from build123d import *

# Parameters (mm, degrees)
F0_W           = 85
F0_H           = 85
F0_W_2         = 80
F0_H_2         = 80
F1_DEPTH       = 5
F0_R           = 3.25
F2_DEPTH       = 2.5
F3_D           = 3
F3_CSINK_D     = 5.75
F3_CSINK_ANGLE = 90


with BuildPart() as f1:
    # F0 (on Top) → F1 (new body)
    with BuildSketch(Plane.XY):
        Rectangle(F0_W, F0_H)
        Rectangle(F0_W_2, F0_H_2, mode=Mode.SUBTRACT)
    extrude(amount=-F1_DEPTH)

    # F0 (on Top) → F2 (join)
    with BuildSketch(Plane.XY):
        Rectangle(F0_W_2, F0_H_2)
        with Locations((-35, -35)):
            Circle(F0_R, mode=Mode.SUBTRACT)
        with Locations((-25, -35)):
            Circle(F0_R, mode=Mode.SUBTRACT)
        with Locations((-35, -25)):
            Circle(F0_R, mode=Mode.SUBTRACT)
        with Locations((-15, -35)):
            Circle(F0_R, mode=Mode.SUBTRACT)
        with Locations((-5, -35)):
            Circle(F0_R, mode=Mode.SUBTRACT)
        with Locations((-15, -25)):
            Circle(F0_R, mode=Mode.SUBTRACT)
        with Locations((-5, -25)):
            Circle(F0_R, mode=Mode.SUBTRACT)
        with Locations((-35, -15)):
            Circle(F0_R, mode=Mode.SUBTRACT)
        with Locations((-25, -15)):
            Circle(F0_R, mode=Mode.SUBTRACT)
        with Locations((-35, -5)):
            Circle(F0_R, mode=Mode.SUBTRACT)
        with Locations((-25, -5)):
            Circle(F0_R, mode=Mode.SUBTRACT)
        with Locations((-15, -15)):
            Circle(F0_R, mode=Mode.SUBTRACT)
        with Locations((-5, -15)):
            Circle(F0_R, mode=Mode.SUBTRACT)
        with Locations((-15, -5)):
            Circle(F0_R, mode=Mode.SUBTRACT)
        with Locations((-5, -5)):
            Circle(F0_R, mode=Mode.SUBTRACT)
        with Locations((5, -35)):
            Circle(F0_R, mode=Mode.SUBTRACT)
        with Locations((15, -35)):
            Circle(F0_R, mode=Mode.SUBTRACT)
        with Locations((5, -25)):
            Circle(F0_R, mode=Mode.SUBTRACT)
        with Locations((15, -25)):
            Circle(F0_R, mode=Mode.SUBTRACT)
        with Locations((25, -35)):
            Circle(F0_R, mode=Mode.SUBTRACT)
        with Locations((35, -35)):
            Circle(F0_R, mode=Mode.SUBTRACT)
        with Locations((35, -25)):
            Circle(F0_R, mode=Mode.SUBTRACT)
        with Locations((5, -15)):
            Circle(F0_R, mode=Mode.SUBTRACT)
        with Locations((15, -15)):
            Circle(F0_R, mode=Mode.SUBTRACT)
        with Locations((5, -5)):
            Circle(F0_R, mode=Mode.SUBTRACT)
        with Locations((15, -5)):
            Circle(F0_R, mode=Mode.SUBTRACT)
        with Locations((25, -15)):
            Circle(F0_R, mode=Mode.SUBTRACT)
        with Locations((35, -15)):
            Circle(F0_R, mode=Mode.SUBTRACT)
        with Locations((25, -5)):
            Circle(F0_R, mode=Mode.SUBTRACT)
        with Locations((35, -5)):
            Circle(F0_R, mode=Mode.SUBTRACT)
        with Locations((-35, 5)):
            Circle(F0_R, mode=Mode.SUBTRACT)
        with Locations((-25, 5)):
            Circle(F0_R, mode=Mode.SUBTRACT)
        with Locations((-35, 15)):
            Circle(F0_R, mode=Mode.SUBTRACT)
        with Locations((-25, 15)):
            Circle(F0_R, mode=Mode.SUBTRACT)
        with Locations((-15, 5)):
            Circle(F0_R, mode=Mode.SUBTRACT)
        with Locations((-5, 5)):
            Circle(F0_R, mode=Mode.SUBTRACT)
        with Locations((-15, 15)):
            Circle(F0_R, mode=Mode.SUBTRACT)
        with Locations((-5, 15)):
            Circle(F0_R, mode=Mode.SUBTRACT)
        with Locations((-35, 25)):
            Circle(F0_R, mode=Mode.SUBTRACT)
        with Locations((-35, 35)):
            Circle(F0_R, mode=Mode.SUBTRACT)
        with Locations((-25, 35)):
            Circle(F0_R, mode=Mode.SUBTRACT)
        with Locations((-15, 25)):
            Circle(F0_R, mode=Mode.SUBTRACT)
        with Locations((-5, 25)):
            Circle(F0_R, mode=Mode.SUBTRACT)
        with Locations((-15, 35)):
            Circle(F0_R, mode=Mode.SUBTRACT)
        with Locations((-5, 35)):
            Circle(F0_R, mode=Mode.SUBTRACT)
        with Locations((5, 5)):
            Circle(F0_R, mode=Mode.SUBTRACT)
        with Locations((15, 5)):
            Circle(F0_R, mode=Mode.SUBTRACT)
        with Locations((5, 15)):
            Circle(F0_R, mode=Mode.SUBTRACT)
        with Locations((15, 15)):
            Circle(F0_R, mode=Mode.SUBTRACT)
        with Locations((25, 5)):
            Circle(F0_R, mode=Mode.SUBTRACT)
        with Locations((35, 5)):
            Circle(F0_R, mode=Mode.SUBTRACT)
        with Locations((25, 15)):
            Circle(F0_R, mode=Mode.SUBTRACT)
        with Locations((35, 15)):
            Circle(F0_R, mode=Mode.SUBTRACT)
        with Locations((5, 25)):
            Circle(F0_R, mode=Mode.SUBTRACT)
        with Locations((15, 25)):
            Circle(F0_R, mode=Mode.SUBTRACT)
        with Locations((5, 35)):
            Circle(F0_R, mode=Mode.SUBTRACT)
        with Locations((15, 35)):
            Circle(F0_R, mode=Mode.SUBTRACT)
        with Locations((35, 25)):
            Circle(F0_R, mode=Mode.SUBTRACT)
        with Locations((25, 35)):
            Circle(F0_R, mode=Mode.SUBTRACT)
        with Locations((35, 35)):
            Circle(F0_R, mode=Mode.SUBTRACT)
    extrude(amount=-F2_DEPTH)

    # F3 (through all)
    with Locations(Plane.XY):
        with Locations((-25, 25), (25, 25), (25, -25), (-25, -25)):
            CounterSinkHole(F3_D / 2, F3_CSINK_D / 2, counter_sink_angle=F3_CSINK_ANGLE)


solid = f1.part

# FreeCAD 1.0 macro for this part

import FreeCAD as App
import Part
import Sketcher
from FreeCAD import Vector


def add_polygon(sketch, points):
    """Adds a closed chain of lines whose ends are joined by coincident constraints."""
    first, n = sketch.GeometryCount, len(points)
    for a, b in zip(points, points[1:] + points[:1]):
        sketch.addGeometry(Part.LineSegment(App.Vector(*a, 0), App.Vector(*b, 0)), False)
    for i in range(n):
        sketch.addConstraint(Sketcher.Constraint("Coincident", first + i, 2, first + (i + 1) % n, 1))

doc = App.newDocument("Part")
body = doc.addObject("PartDesign::Body", "Body")

sketch1 = body.newObject("Sketcher::SketchObject", "Sketch")
sketch1.AttachmentSupport = (doc.getObject("XY_Plane"), [""])
sketch1.MapMode = "FlatFace"
add_polygon(sketch1, [(-42.5, 42.5), (-42.5, -42.5), (42.5, -42.5), (42.5, 42.5)])
add_polygon(sketch1, [(40, -40), (-40, -40), (-40, 40), (40, 40)])
sketch1.addConstraint(Sketcher.Constraint("Vertical", 0))
sketch1.addConstraint(Sketcher.Constraint("Horizontal", 1))
sketch1.addConstraint(Sketcher.Constraint("Vertical", 2))
sketch1.addConstraint(Sketcher.Constraint("Horizontal", 3))
sketch1.addConstraint(Sketcher.Constraint("Horizontal", 4))
sketch1.addConstraint(Sketcher.Constraint("Vertical", 5))
sketch1.addConstraint(Sketcher.Constraint("Horizontal", 6))
sketch1.addConstraint(Sketcher.Constraint("Vertical", 7))
sketch1.addConstraint(Sketcher.Constraint("Symmetric", 0, 2, 2, 2, -1, 1))
sketch1.addConstraint(Sketcher.Constraint("Symmetric", 4, 2, 6, 2, -1, 1))
sketch1.addConstraint(Sketcher.Constraint("Equal", 3, 0))
sketch1.addConstraint(Sketcher.Constraint("Equal", 6, 5))
sketch1.addConstraint(Sketcher.Constraint("DistanceX", 1, 1, 1, 2, 85.0))
sketch1.addConstraint(Sketcher.Constraint("DistanceX", 4, 2, 4, 1, 80.0))
pad1 = body.newObject("PartDesign::Pad", "Pad")
pad1.Profile = sketch1
pad1.Length = 5
pad1.Reversed = True

sketch2 = body.newObject("Sketcher::SketchObject", "Sketch001")
sketch2.AttachmentSupport = (doc.getObject("XY_Plane"), [""])
sketch2.MapMode = "FlatFace"
add_polygon(sketch2, [(-40, 40), (-40, -40), (40, -40), (40, 40)])
sketch2.addGeometry(Part.Circle(Vector(-35, -35, 0), Vector(0, 0, 1), 3.25), False)
sketch2.addGeometry(Part.Circle(Vector(-25, -35, 0), Vector(0, 0, 1), 3.25), False)
sketch2.addGeometry(Part.Circle(Vector(-35, -25, 0), Vector(0, 0, 1), 3.25), False)
sketch2.addGeometry(Part.Circle(Vector(-15, -35, 0), Vector(0, 0, 1), 3.25), False)
sketch2.addGeometry(Part.Circle(Vector(-5, -35, 0), Vector(0, 0, 1), 3.25), False)
sketch2.addGeometry(Part.Circle(Vector(-15, -25, 0), Vector(0, 0, 1), 3.25), False)
sketch2.addGeometry(Part.Circle(Vector(-5, -25, 0), Vector(0, 0, 1), 3.25), False)
sketch2.addGeometry(Part.Circle(Vector(-35, -15, 0), Vector(0, 0, 1), 3.25), False)
sketch2.addGeometry(Part.Circle(Vector(-25, -15, 0), Vector(0, 0, 1), 3.25), False)
sketch2.addGeometry(Part.Circle(Vector(-35, -5, 0), Vector(0, 0, 1), 3.25), False)
sketch2.addGeometry(Part.Circle(Vector(-25, -5, 0), Vector(0, 0, 1), 3.25), False)
sketch2.addGeometry(Part.Circle(Vector(-15, -15, 0), Vector(0, 0, 1), 3.25), False)
sketch2.addGeometry(Part.Circle(Vector(-5, -15, 0), Vector(0, 0, 1), 3.25), False)
sketch2.addGeometry(Part.Circle(Vector(-15, -5, 0), Vector(0, 0, 1), 3.25), False)
sketch2.addGeometry(Part.Circle(Vector(-5, -5, 0), Vector(0, 0, 1), 3.25), False)
sketch2.addGeometry(Part.Circle(Vector(5, -35, 0), Vector(0, 0, 1), 3.25), False)
sketch2.addGeometry(Part.Circle(Vector(15, -35, 0), Vector(0, 0, 1), 3.25), False)
sketch2.addGeometry(Part.Circle(Vector(5, -25, 0), Vector(0, 0, 1), 3.25), False)
sketch2.addGeometry(Part.Circle(Vector(15, -25, 0), Vector(0, 0, 1), 3.25), False)
sketch2.addGeometry(Part.Circle(Vector(25, -35, 0), Vector(0, 0, 1), 3.25), False)
sketch2.addGeometry(Part.Circle(Vector(35, -35, 0), Vector(0, 0, 1), 3.25), False)
sketch2.addGeometry(Part.Circle(Vector(35, -25, 0), Vector(0, 0, 1), 3.25), False)
sketch2.addGeometry(Part.Circle(Vector(5, -15, 0), Vector(0, 0, 1), 3.25), False)
sketch2.addGeometry(Part.Circle(Vector(15, -15, 0), Vector(0, 0, 1), 3.25), False)
sketch2.addGeometry(Part.Circle(Vector(5, -5, 0), Vector(0, 0, 1), 3.25), False)
sketch2.addGeometry(Part.Circle(Vector(15, -5, 0), Vector(0, 0, 1), 3.25), False)
sketch2.addGeometry(Part.Circle(Vector(25, -15, 0), Vector(0, 0, 1), 3.25), False)
sketch2.addGeometry(Part.Circle(Vector(35, -15, 0), Vector(0, 0, 1), 3.25), False)
sketch2.addGeometry(Part.Circle(Vector(25, -5, 0), Vector(0, 0, 1), 3.25), False)
sketch2.addGeometry(Part.Circle(Vector(35, -5, 0), Vector(0, 0, 1), 3.25), False)
sketch2.addGeometry(Part.Circle(Vector(-35, 5, 0), Vector(0, 0, 1), 3.25), False)
sketch2.addGeometry(Part.Circle(Vector(-25, 5, 0), Vector(0, 0, 1), 3.25), False)
sketch2.addGeometry(Part.Circle(Vector(-35, 15, 0), Vector(0, 0, 1), 3.25), False)
sketch2.addGeometry(Part.Circle(Vector(-25, 15, 0), Vector(0, 0, 1), 3.25), False)
sketch2.addGeometry(Part.Circle(Vector(-15, 5, 0), Vector(0, 0, 1), 3.25), False)
sketch2.addGeometry(Part.Circle(Vector(-5, 5, 0), Vector(0, 0, 1), 3.25), False)
sketch2.addGeometry(Part.Circle(Vector(-15, 15, 0), Vector(0, 0, 1), 3.25), False)
sketch2.addGeometry(Part.Circle(Vector(-5, 15, 0), Vector(0, 0, 1), 3.25), False)
sketch2.addGeometry(Part.Circle(Vector(-35, 25, 0), Vector(0, 0, 1), 3.25), False)
sketch2.addGeometry(Part.Circle(Vector(-35, 35, 0), Vector(0, 0, 1), 3.25), False)
sketch2.addGeometry(Part.Circle(Vector(-25, 35, 0), Vector(0, 0, 1), 3.25), False)
sketch2.addGeometry(Part.Circle(Vector(-15, 25, 0), Vector(0, 0, 1), 3.25), False)
sketch2.addGeometry(Part.Circle(Vector(-5, 25, 0), Vector(0, 0, 1), 3.25), False)
sketch2.addGeometry(Part.Circle(Vector(-15, 35, 0), Vector(0, 0, 1), 3.25), False)
sketch2.addGeometry(Part.Circle(Vector(-5, 35, 0), Vector(0, 0, 1), 3.25), False)
sketch2.addGeometry(Part.Circle(Vector(5, 5, 0), Vector(0, 0, 1), 3.25), False)
sketch2.addGeometry(Part.Circle(Vector(15, 5, 0), Vector(0, 0, 1), 3.25), False)
sketch2.addGeometry(Part.Circle(Vector(5, 15, 0), Vector(0, 0, 1), 3.25), False)
sketch2.addGeometry(Part.Circle(Vector(15, 15, 0), Vector(0, 0, 1), 3.25), False)
sketch2.addGeometry(Part.Circle(Vector(25, 5, 0), Vector(0, 0, 1), 3.25), False)
sketch2.addGeometry(Part.Circle(Vector(35, 5, 0), Vector(0, 0, 1), 3.25), False)
sketch2.addGeometry(Part.Circle(Vector(25, 15, 0), Vector(0, 0, 1), 3.25), False)
sketch2.addGeometry(Part.Circle(Vector(35, 15, 0), Vector(0, 0, 1), 3.25), False)
sketch2.addGeometry(Part.Circle(Vector(5, 25, 0), Vector(0, 0, 1), 3.25), False)
sketch2.addGeometry(Part.Circle(Vector(15, 25, 0), Vector(0, 0, 1), 3.25), False)
sketch2.addGeometry(Part.Circle(Vector(5, 35, 0), Vector(0, 0, 1), 3.25), False)
sketch2.addGeometry(Part.Circle(Vector(15, 35, 0), Vector(0, 0, 1), 3.25), False)
sketch2.addGeometry(Part.Circle(Vector(35, 25, 0), Vector(0, 0, 1), 3.25), False)
sketch2.addGeometry(Part.Circle(Vector(25, 35, 0), Vector(0, 0, 1), 3.25), False)
sketch2.addGeometry(Part.Circle(Vector(35, 35, 0), Vector(0, 0, 1), 3.25), False)
sketch2.addConstraint(Sketcher.Constraint("Vertical", 0))
sketch2.addConstraint(Sketcher.Constraint("Horizontal", 1))
sketch2.addConstraint(Sketcher.Constraint("Vertical", 2))
sketch2.addConstraint(Sketcher.Constraint("Horizontal", 3))
sketch2.addConstraint(Sketcher.Constraint("Equal", 4, 5))
sketch2.addConstraint(Sketcher.Constraint("Equal", 5, 6))
sketch2.addConstraint(Sketcher.Constraint("Equal", 6, 7))
sketch2.addConstraint(Sketcher.Constraint("Equal", 7, 8))
sketch2.addConstraint(Sketcher.Constraint("Equal", 8, 9))
sketch2.addConstraint(Sketcher.Constraint("Equal", 9, 10))
sketch2.addConstraint(Sketcher.Constraint("Equal", 10, 11))
sketch2.addConstraint(Sketcher.Constraint("Equal", 11, 12))
sketch2.addConstraint(Sketcher.Constraint("Equal", 12, 13))
sketch2.addConstraint(Sketcher.Constraint("Equal", 13, 14))
sketch2.addConstraint(Sketcher.Constraint("Equal", 14, 15))
sketch2.addConstraint(Sketcher.Constraint("Equal", 15, 16))
sketch2.addConstraint(Sketcher.Constraint("Equal", 16, 17))
sketch2.addConstraint(Sketcher.Constraint("Equal", 17, 18))
sketch2.addConstraint(Sketcher.Constraint("Equal", 18, 19))
sketch2.addConstraint(Sketcher.Constraint("Equal", 19, 20))
sketch2.addConstraint(Sketcher.Constraint("Equal", 20, 21))
sketch2.addConstraint(Sketcher.Constraint("Equal", 21, 22))
sketch2.addConstraint(Sketcher.Constraint("Equal", 22, 23))
sketch2.addConstraint(Sketcher.Constraint("Equal", 23, 24))
sketch2.addConstraint(Sketcher.Constraint("Equal", 24, 25))
sketch2.addConstraint(Sketcher.Constraint("Equal", 25, 26))
sketch2.addConstraint(Sketcher.Constraint("Equal", 26, 27))
sketch2.addConstraint(Sketcher.Constraint("Equal", 27, 28))
sketch2.addConstraint(Sketcher.Constraint("Equal", 28, 29))
sketch2.addConstraint(Sketcher.Constraint("Equal", 29, 30))
sketch2.addConstraint(Sketcher.Constraint("Equal", 30, 31))
sketch2.addConstraint(Sketcher.Constraint("Equal", 31, 32))
sketch2.addConstraint(Sketcher.Constraint("Equal", 32, 33))
sketch2.addConstraint(Sketcher.Constraint("Equal", 33, 34))
sketch2.addConstraint(Sketcher.Constraint("Equal", 34, 35))
sketch2.addConstraint(Sketcher.Constraint("Equal", 35, 36))
sketch2.addConstraint(Sketcher.Constraint("Equal", 36, 37))
sketch2.addConstraint(Sketcher.Constraint("Equal", 37, 38))
sketch2.addConstraint(Sketcher.Constraint("Equal", 38, 39))
sketch2.addConstraint(Sketcher.Constraint("Equal", 39, 40))
sketch2.addConstraint(Sketcher.Constraint("Equal", 40, 41))
sketch2.addConstraint(Sketcher.Constraint("Equal", 41, 42))
sketch2.addConstraint(Sketcher.Constraint("Equal", 42, 43))
sketch2.addConstraint(Sketcher.Constraint("Equal", 43, 44))
sketch2.addConstraint(Sketcher.Constraint("Equal", 44, 45))
sketch2.addConstraint(Sketcher.Constraint("Equal", 45, 46))
sketch2.addConstraint(Sketcher.Constraint("Equal", 46, 47))
sketch2.addConstraint(Sketcher.Constraint("Equal", 47, 48))
sketch2.addConstraint(Sketcher.Constraint("Equal", 48, 49))
sketch2.addConstraint(Sketcher.Constraint("Equal", 49, 50))
sketch2.addConstraint(Sketcher.Constraint("Equal", 50, 51))
sketch2.addConstraint(Sketcher.Constraint("Equal", 51, 52))
sketch2.addConstraint(Sketcher.Constraint("Equal", 52, 53))
sketch2.addConstraint(Sketcher.Constraint("Equal", 53, 54))
sketch2.addConstraint(Sketcher.Constraint("Equal", 54, 55))
sketch2.addConstraint(Sketcher.Constraint("Equal", 55, 56))
sketch2.addConstraint(Sketcher.Constraint("Equal", 56, 57))
sketch2.addConstraint(Sketcher.Constraint("Equal", 57, 58))
sketch2.addConstraint(Sketcher.Constraint("Equal", 58, 59))
sketch2.addConstraint(Sketcher.Constraint("Equal", 59, 60))
sketch2.addConstraint(Sketcher.Constraint("Equal", 60, 61))
sketch2.addConstraint(Sketcher.Constraint("Equal", 61, 62))
sketch2.addConstraint(Sketcher.Constraint("Equal", 62, 63))
sketch2.addConstraint(Sketcher.Constraint("Symmetric", 33, 3, 34, 3, -1, 1))
sketch2.addConstraint(Sketcher.Constraint("Symmetric", 32, 3, 35, 3, -1, 1))
sketch2.addConstraint(Sketcher.Constraint("Symmetric", 31, 3, 36, 3, -1, 1))
sketch2.addConstraint(Sketcher.Constraint("Symmetric", 30, 3, 37, 3, -1, 1))
sketch2.addConstraint(Sketcher.Constraint("Symmetric", 29, 3, 38, 3, -1, 1))
sketch2.addConstraint(Sketcher.Constraint("Symmetric", 28, 3, 39, 3, -1, 1))
sketch2.addConstraint(Sketcher.Constraint("Symmetric", 27, 3, 40, 3, -1, 1))
sketch2.addConstraint(Sketcher.Constraint("Symmetric", 26, 3, 41, 3, -1, 1))
sketch2.addConstraint(Sketcher.Constraint("Symmetric", 25, 3, 42, 3, -1, 1))
sketch2.addConstraint(Sketcher.Constraint("Symmetric", 24, 3, 43, 3, -1, 1))
sketch2.addConstraint(Sketcher.Constraint("Symmetric", 23, 3, 44, 3, -1, 1))
sketch2.addConstraint(Sketcher.Constraint("Symmetric", 22, 3, 45, 3, -1, 1))
sketch2.addConstraint(Sketcher.Constraint("Symmetric", 21, 3, 46, 3, -1, 1))
sketch2.addConstraint(Sketcher.Constraint("Symmetric", 20, 3, 47, 3, -1, 1))
sketch2.addConstraint(Sketcher.Constraint("Symmetric", 19, 3, 48, 3, -1, 1))
sketch2.addConstraint(Sketcher.Constraint("Symmetric", 18, 3, 49, 3, -1, 1))
sketch2.addConstraint(Sketcher.Constraint("Symmetric", 17, 3, 50, 3, -1, 1))
sketch2.addConstraint(Sketcher.Constraint("Symmetric", 16, 3, 51, 3, -1, 1))
sketch2.addConstraint(Sketcher.Constraint("Symmetric", 15, 3, 52, 3, -1, 1))
sketch2.addConstraint(Sketcher.Constraint("Symmetric", 14, 3, 53, 3, -1, 1))
sketch2.addConstraint(Sketcher.Constraint("Symmetric", 13, 3, 54, 3, -1, 1))
sketch2.addConstraint(Sketcher.Constraint("Symmetric", 12, 3, 55, 3, -1, 1))
sketch2.addConstraint(Sketcher.Constraint("Symmetric", 11, 3, 56, 3, -1, 1))
sketch2.addConstraint(Sketcher.Constraint("Symmetric", 10, 3, 57, 3, -1, 1))
sketch2.addConstraint(Sketcher.Constraint("Symmetric", 9, 3, 58, 3, -1, 1))
sketch2.addConstraint(Sketcher.Constraint("Symmetric", 8, 3, 59, 3, -1, 1))
sketch2.addConstraint(Sketcher.Constraint("Symmetric", 7, 3, 60, 3, -1, 1))
sketch2.addConstraint(Sketcher.Constraint("Symmetric", 6, 3, 61, 3, -1, 1))
sketch2.addConstraint(Sketcher.Constraint("Symmetric", 5, 3, 62, 3, -1, 1))
sketch2.addConstraint(Sketcher.Constraint("Symmetric", 4, 3, 63, 3, -1, 1))
sketch2.addConstraint(Sketcher.Constraint("Symmetric", 0, 2, 2, 2, -1, 1))
sketch2.addConstraint(Sketcher.Constraint("Symmetric", 8, 3, 19, 3, -2))
sketch2.addConstraint(Sketcher.Constraint("Symmetric", 7, 3, 20, 3, -2))
sketch2.addConstraint(Sketcher.Constraint("Symmetric", 10, 3, 21, 3, -2))
sketch2.addConstraint(Sketcher.Constraint("Symmetric", 9, 3, 22, 3, -2))
sketch2.addConstraint(Sketcher.Constraint("Symmetric", 5, 3, 23, 3, -2))
sketch2.addConstraint(Sketcher.Constraint("Symmetric", 4, 3, 24, 3, -2))
sketch2.addConstraint(Sketcher.Constraint("Symmetric", 6, 3, 25, 3, -2))
sketch2.addConstraint(Sketcher.Constraint("Symmetric", 16, 3, 26, 3, -2))
sketch2.addConstraint(Sketcher.Constraint("Symmetric", 15, 3, 27, 3, -2))
sketch2.addConstraint(Sketcher.Constraint("Symmetric", 18, 3, 28, 3, -2))
sketch2.addConstraint(Sketcher.Constraint("Symmetric", 17, 3, 29, 3, -2))
sketch2.addConstraint(Sketcher.Constraint("Symmetric", 12, 3, 30, 3, -2))
sketch2.addConstraint(Sketcher.Constraint("Symmetric", 11, 3, 31, 3, -2))
sketch2.addConstraint(Sketcher.Constraint("Symmetric", 14, 3, 32, 3, -2))
sketch2.addConstraint(Sketcher.Constraint("Symmetric", 13, 3, 33, 3, -2))
sketch2.addConstraint(Sketcher.Constraint("Horizontal", 4, 3, 5, 3))
sketch2.addConstraint(Sketcher.Constraint("Horizontal", 5, 3, 7, 3))
sketch2.addConstraint(Sketcher.Constraint("Horizontal", 7, 3, 8, 3))
sketch2.addConstraint(Sketcher.Constraint("Horizontal", 6, 3, 9, 3))
sketch2.addConstraint(Sketcher.Constraint("Horizontal", 9, 3, 10, 3))
sketch2.addConstraint(Sketcher.Constraint("Horizontal", 11, 3, 12, 3))
sketch2.addConstraint(Sketcher.Constraint("Horizontal", 13, 3, 14, 3))
sketch2.addConstraint(Sketcher.Constraint("Horizontal", 12, 3, 15, 3))
sketch2.addConstraint(Sketcher.Constraint("Horizontal", 15, 3, 16, 3))
sketch2.addConstraint(Sketcher.Constraint("Horizontal", 14, 3, 17, 3))
sketch2.addConstraint(Sketcher.Constraint("Horizontal", 17, 3, 18, 3))
sketch2.addConstraint(Sketcher.Constraint("Vertical", 4, 3, 6, 3))
sketch2.addConstraint(Sketcher.Constraint("Vertical", 7, 3, 9, 3))
sketch2.addConstraint(Sketcher.Constraint("Vertical", 8, 3, 10, 3))
sketch2.addConstraint(Sketcher.Constraint("Vertical", 6, 3, 11, 3))
sketch2.addConstraint(Sketcher.Constraint("Vertical", 5, 3, 12, 3))
sketch2.addConstraint(Sketcher.Constraint("Vertical", 11, 3, 13, 3))
sketch2.addConstraint(Sketcher.Constraint("Vertical", 12, 3, 14, 3))
sketch2.addConstraint(Sketcher.Constraint("Vertical", 9, 3, 15, 3))
sketch2.addConstraint(Sketcher.Constraint("Vertical", 10, 3, 16, 3))
sketch2.addConstraint(Sketcher.Constraint("Vertical", 15, 3, 17, 3))
sketch2.addConstraint(Sketcher.Constraint("Vertical", 16, 3, 18, 3))
sketch2.addConstraint(Sketcher.Constraint("Equal", 3, 0))
sketch2.addConstraint(Sketcher.Constraint("Diameter", 4, 6.5))
sketch2.addConstraint(Sketcher.Constraint("DistanceX", 1, 1, 1, 2, 80.0))
sketch2.addConstraint(Sketcher.Constraint("DistanceX", 4, 3, -1, 1, 35.0))
sketch2.addConstraint(Sketcher.Constraint("DistanceY", 4, 3, -1, 1, 35.0))
sketch2.addConstraint(Sketcher.Constraint("DistanceX", 5, 3, -1, 1, 25.0))
sketch2.addConstraint(Sketcher.Constraint("DistanceY", 6, 3, -1, 1, 25.0))
sketch2.addConstraint(Sketcher.Constraint("DistanceX", 7, 3, -1, 1, 15.0))
sketch2.addConstraint(Sketcher.Constraint("DistanceX", 8, 3, -1, 1, 5.0))
sketch2.addConstraint(Sketcher.Constraint("DistanceY", 11, 3, -1, 1, 15.0))
sketch2.addConstraint(Sketcher.Constraint("DistanceY", 13, 3, -1, 1, 5.0))
pad2 = body.newObject("PartDesign::Pad", "Pad001")
pad2.Profile = sketch2
pad2.Length = 2.5
pad2.Reversed = True

sketch3 = body.newObject("Sketcher::SketchObject", "Sketch002")
sketch3.AttachmentSupport = (doc.getObject("XY_Plane"), [""])
sketch3.MapMode = "FlatFace"
sketch3.addGeometry(Part.Circle(Vector(-25, 25, 0), Vector(0, 0, 1), 1.5), False)
sketch3.addGeometry(Part.Circle(Vector(25, 25, 0), Vector(0, 0, 1), 1.5), False)
sketch3.addGeometry(Part.Circle(Vector(25, -25, 0), Vector(0, 0, 1), 1.5), False)
sketch3.addGeometry(Part.Circle(Vector(-25, -25, 0), Vector(0, 0, 1), 1.5), False)
sketch3.addConstraint(Sketcher.Constraint("Equal", 0, 1))
sketch3.addConstraint(Sketcher.Constraint("Equal", 1, 2))
sketch3.addConstraint(Sketcher.Constraint("Equal", 2, 3))
sketch3.addConstraint(Sketcher.Constraint("Symmetric", 0, 3, 2, 3, -1, 1))
sketch3.addConstraint(Sketcher.Constraint("Symmetric", 1, 3, 3, 3, -1, 1))
sketch3.addConstraint(Sketcher.Constraint("Symmetric", 0, 3, 1, 3, -2))
sketch3.addConstraint(Sketcher.Constraint("Diameter", 0, 3.0))
sketch3.addConstraint(Sketcher.Constraint("DistanceX", 0, 3, -1, 1, 25.0))
sketch3.addConstraint(Sketcher.Constraint("DistanceY", -1, 1, 0, 3, 25.0))
doc.recompute()
hole = body.newObject("PartDesign::Hole", "Hole")
hole.Profile = sketch3
hole.ThreadType = "None"
hole.Diameter = 3
hole.DepthType = "ThroughAll"
hole.HoleCutType = "Countersink"
hole.HoleCutDiameter = 5.75
hole.HoleCutCountersinkAngle = 90

doc.recompute()
